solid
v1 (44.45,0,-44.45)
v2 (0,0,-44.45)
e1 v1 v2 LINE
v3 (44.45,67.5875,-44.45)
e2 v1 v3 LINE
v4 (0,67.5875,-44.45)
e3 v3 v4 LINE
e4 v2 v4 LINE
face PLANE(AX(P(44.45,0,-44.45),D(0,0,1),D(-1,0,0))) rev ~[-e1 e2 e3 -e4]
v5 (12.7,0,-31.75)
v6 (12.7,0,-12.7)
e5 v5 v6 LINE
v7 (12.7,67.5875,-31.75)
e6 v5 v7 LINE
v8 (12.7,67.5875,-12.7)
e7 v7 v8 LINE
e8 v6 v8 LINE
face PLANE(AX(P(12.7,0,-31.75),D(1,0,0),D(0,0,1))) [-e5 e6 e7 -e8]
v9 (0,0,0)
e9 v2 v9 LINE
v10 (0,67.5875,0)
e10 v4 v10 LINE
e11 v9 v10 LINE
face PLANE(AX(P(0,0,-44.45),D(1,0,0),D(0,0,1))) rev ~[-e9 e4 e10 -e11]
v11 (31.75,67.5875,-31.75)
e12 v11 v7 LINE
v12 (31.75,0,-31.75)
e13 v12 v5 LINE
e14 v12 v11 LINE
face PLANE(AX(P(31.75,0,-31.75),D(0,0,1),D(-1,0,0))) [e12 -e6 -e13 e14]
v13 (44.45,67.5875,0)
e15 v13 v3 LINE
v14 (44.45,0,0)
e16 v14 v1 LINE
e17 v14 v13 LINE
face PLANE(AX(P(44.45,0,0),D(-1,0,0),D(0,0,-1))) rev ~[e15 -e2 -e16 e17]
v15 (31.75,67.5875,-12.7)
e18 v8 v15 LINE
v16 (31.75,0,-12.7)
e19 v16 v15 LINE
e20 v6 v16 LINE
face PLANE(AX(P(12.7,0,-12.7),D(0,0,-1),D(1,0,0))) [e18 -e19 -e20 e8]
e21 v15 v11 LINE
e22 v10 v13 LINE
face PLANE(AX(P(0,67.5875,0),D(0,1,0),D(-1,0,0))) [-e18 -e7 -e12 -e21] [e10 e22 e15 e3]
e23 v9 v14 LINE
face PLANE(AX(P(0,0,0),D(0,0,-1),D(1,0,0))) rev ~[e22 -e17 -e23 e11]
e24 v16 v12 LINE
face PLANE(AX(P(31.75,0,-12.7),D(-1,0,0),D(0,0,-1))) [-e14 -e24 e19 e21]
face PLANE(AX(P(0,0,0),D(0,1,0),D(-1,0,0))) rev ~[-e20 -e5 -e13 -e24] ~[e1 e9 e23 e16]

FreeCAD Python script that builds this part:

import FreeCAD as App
import Part
import Sketcher
Q = App.Units.Quantity


def add_polygon(sketch, points):
    """Adds a closed chain of lines whose ends are joined by coincident constraints."""
    first, n = sketch.GeometryCount, len(points)
    for a, b in zip(points, points[1:] + points[:1]):
        sketch.addGeometry(Part.LineSegment(App.Vector(*a, 0), App.Vector(*b, 0)), False)
    for i in range(n):
        sketch.addConstraint(Sketcher.Constraint("Coincident", first + i, 2, first + (i + 1) % n, 1))

doc = App.newDocument("Part")
body = doc.addObject("PartDesign::Body", "Body")

# Sketch on XZ plane
sketch1 = body.newObject("Sketcher::SketchObject", "Sketch")
sketch1.AttachmentSupport = (doc.getObject("XZ_Plane"), [""])
sketch1.MapMode = "FlatFace"
add_polygon(sketch1, [(0, -44.45), (0, 0), (44.45, 0), (44.45, -44.45)])  # lines 0-3
add_polygon(sketch1, [(31.75, -12.7), (12.7, -12.7), (12.7, -31.75), (31.75, -31.75)])  # lines 4-7
sketch1.addConstraint([
    Sketcher.Constraint("Vertical", 0),
    Sketcher.Constraint("Horizontal", 1),
    Sketcher.Constraint("Vertical", 2),
    Sketcher.Constraint("Horizontal", 3),
    Sketcher.Constraint("Horizontal", 4),
    Sketcher.Constraint("Vertical", 5),
    Sketcher.Constraint("Horizontal", 6),
    Sketcher.Constraint("Vertical", 7),
    Sketcher.Constraint("Coincident", 0, 2, -1, 1),
    Sketcher.Constraint("Equal", 3, 0),
    Sketcher.Constraint("Equal", 6, 5),
    Sketcher.Constraint("DistanceX", 1, 1, 1, 2, Q("1.75 in")),
    Sketcher.Constraint("DistanceX", 4, 2, 4, 1, Q("0.75 in")),
    Sketcher.Constraint("DistanceX", -1, 1, 4, 2, Q("0.5 in")),
    Sketcher.Constraint("DistanceY", 4, 2, -1, 1, Q("0.5 in")),
])
pad1 = body.newObject("PartDesign::Pad", "Pad")
pad1.Profile = sketch1
pad1.Length = 67.5875
pad1.Reversed = True

doc.recompute()
